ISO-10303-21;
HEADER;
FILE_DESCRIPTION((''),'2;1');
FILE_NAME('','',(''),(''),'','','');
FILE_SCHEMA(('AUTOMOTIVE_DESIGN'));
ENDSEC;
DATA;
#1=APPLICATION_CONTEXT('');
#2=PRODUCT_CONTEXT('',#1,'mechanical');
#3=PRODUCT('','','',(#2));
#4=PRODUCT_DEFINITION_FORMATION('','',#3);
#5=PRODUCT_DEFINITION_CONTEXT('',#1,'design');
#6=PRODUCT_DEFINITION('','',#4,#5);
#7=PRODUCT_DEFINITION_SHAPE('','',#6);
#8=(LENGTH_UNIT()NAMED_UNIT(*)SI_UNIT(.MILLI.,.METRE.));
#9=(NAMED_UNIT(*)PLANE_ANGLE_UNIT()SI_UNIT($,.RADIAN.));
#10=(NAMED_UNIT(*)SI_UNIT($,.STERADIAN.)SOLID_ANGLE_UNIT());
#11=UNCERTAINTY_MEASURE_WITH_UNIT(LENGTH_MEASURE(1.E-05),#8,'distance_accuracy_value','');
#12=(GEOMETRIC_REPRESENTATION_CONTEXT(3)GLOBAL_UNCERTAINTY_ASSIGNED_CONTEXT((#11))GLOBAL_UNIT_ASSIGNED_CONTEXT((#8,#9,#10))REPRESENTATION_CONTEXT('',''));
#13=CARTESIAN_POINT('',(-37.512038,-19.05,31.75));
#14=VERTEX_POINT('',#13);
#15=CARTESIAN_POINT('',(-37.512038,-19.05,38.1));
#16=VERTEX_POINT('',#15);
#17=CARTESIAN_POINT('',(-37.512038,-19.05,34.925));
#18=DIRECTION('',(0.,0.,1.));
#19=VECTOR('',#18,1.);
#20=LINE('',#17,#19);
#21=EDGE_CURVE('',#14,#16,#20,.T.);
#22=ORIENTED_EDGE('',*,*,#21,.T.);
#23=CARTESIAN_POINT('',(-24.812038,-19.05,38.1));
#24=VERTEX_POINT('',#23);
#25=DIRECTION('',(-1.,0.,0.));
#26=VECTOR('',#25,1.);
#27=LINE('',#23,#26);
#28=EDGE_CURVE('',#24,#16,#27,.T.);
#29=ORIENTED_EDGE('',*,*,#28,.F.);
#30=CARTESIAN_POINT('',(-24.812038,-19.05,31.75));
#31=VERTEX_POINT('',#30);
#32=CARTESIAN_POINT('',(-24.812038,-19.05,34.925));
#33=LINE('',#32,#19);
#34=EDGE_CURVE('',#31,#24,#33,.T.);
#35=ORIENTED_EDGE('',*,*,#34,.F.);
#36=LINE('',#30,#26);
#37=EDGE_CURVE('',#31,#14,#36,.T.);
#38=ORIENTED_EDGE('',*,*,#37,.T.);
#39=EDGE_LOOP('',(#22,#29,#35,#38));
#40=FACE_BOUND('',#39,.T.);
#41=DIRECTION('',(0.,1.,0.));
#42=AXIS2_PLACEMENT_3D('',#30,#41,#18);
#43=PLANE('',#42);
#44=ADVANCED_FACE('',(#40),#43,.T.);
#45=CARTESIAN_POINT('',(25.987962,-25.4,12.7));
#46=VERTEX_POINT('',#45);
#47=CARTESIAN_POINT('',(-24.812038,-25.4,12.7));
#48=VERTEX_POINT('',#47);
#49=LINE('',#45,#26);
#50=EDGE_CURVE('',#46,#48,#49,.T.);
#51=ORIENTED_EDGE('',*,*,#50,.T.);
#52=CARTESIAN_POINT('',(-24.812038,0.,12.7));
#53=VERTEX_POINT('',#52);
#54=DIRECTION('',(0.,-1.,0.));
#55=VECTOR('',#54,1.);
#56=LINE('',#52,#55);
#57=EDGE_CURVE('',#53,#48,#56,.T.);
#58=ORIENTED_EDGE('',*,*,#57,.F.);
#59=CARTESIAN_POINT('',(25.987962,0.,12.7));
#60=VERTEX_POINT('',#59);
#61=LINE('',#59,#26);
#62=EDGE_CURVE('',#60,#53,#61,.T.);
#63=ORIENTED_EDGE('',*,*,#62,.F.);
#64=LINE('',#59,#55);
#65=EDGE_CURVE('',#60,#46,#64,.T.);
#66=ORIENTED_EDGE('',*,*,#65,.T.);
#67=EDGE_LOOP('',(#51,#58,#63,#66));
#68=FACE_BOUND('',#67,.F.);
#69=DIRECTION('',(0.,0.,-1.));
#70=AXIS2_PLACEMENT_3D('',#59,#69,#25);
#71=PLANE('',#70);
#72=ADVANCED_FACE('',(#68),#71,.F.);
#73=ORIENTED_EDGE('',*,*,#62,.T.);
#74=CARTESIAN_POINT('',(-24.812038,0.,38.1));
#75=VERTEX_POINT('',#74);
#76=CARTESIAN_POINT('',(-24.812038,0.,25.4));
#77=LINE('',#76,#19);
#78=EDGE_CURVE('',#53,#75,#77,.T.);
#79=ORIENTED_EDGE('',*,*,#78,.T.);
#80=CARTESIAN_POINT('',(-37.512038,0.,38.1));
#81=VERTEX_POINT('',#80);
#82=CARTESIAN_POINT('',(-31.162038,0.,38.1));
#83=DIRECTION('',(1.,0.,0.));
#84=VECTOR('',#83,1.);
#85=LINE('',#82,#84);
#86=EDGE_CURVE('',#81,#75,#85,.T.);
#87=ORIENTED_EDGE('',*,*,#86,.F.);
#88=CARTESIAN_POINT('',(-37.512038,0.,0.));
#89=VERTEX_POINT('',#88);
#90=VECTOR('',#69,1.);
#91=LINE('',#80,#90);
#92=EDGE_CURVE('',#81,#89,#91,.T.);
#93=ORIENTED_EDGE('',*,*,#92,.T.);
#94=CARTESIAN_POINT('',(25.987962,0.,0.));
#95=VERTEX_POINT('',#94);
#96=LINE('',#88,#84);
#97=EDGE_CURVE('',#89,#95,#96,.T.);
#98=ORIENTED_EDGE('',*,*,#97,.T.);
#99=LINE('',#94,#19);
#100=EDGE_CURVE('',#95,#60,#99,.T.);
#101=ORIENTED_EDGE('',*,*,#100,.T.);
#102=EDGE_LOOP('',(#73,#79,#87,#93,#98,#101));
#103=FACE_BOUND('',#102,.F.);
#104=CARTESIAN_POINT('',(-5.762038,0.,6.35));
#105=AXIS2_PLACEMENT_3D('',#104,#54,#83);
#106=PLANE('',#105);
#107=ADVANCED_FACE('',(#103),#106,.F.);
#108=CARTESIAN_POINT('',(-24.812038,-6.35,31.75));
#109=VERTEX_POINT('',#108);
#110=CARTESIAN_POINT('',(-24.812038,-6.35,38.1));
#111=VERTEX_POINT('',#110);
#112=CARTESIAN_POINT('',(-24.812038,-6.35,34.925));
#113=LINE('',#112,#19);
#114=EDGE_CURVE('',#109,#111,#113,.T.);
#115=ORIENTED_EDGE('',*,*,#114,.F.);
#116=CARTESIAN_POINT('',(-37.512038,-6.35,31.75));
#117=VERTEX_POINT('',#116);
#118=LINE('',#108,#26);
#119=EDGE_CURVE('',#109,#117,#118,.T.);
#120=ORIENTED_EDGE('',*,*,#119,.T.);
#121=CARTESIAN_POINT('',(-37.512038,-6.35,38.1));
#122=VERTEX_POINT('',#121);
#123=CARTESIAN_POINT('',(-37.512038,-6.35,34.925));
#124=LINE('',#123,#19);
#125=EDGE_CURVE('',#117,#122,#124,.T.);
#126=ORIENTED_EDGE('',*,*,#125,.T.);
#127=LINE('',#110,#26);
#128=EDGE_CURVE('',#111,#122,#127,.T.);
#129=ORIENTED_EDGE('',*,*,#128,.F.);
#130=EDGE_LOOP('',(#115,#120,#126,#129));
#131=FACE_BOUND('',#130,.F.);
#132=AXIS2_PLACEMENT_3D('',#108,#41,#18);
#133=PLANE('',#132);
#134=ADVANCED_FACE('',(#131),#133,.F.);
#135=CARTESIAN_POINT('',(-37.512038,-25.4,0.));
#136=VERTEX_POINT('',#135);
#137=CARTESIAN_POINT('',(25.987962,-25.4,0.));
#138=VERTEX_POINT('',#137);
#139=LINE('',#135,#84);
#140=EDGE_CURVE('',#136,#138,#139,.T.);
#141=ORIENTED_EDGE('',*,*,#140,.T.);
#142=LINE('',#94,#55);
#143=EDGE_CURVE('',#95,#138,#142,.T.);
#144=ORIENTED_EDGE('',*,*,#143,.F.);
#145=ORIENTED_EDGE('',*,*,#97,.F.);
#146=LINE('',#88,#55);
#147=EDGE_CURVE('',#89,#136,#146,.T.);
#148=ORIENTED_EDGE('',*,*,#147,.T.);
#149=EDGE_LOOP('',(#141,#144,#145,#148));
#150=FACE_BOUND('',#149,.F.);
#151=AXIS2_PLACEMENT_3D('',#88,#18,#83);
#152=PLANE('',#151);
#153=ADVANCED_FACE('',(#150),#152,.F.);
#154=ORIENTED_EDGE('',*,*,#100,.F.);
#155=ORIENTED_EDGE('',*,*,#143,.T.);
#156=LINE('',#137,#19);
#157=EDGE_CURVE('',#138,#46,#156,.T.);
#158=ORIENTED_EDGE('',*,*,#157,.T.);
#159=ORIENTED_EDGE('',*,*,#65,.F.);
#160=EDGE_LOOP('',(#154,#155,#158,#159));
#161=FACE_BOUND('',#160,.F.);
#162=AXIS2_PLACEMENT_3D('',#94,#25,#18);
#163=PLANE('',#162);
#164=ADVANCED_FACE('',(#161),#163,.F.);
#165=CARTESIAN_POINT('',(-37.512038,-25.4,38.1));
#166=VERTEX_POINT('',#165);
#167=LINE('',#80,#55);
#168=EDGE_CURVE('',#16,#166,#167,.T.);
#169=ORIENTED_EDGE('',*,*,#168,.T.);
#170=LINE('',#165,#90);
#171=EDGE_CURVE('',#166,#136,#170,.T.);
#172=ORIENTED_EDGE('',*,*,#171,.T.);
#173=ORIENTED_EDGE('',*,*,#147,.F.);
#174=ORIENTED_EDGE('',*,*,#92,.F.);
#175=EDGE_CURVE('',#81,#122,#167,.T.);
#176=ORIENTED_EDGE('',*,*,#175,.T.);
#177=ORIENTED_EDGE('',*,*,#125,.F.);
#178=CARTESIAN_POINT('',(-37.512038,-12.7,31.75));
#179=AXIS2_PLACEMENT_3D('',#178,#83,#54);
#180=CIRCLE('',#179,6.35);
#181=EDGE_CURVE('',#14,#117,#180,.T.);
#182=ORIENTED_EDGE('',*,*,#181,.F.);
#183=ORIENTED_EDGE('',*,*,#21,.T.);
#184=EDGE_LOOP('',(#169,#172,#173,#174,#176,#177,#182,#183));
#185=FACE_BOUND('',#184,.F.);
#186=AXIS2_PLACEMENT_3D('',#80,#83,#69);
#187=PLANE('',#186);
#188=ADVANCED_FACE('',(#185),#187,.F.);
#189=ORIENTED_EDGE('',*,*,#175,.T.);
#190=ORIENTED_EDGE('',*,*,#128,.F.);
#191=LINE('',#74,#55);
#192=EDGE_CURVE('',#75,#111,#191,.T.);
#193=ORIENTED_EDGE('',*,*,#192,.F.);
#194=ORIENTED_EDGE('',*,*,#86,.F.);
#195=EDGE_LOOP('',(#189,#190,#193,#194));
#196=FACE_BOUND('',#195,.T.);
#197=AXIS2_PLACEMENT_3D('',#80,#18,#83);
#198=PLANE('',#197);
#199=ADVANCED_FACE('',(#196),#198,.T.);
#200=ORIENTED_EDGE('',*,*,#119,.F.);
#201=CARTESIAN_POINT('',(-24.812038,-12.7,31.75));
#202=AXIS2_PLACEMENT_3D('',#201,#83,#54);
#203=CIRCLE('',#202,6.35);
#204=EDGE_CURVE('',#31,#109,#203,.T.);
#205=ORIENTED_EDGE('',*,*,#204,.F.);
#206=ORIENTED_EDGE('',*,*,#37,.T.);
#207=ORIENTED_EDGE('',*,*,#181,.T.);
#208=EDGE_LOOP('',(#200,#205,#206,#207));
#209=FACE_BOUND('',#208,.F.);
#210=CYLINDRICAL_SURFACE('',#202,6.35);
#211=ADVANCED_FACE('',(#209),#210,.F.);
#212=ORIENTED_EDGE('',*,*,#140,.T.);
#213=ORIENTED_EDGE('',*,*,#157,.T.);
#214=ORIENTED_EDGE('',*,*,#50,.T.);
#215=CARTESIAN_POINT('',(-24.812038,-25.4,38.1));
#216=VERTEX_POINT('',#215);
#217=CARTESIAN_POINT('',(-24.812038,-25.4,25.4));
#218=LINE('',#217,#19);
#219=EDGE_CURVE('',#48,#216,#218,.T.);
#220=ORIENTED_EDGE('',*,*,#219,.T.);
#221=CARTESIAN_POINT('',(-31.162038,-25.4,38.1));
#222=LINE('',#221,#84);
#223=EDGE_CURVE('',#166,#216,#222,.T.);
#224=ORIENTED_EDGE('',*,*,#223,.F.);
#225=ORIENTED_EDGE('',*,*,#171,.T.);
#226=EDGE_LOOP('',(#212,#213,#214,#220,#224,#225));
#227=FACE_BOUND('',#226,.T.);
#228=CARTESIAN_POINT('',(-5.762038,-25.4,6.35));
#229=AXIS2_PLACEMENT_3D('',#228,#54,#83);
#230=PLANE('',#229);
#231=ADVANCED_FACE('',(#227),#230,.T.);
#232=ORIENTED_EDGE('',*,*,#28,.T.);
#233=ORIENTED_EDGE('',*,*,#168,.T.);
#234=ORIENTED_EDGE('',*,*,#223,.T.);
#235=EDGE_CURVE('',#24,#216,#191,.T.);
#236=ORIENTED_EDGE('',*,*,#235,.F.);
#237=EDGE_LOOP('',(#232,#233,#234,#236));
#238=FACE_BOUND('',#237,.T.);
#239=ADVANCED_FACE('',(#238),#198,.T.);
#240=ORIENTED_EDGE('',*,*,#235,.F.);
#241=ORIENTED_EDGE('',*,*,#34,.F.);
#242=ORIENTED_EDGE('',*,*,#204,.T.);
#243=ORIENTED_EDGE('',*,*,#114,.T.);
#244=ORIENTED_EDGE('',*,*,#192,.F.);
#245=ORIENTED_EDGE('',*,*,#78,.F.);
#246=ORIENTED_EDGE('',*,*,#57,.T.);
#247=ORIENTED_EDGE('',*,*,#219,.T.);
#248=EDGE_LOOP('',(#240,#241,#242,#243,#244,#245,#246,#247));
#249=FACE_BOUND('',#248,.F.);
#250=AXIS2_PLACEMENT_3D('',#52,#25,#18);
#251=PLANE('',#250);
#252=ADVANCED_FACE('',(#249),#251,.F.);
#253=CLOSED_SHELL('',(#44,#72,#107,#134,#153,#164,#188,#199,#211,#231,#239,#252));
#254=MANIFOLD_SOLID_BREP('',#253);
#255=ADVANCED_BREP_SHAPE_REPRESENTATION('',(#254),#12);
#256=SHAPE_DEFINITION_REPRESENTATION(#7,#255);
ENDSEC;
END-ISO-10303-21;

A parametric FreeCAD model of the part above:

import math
import FreeCAD as App
import Part
import Sketcher

V = App.Vector
Q = App.Units.Quantity

doc = App.newDocument("Part")
body = doc.addObject("PartDesign::Body", "Body")

# Sketch on XZ plane
sketch1 = body.newObject("Sketcher::SketchObject", "Sketch")
sketch1.AttachmentSupport = (doc.getObject("XZ_Plane"), [""])
sketch1.MapMode = "FlatFace"
sketch1.addGeometry([
    Part.LineSegment(V(-38, 0, 0), V(26, 0, 0)),  # 0
    Part.LineSegment(V(26, 0, 0), V(26, 13, 0)),  # 1
    Part.LineSegment(V(26, 13, 0), V(-25, 13, 0)),  # 2
    Part.LineSegment(V(-25, 13, 0), V(-25, 38, 0)),  # 3
    Part.LineSegment(V(-25, 38, 0), V(-38, 38, 0)),  # 4
    Part.LineSegment(V(-38, 38, 0), V(-38, 0, 0)),  # 5
], False)
sketch1.addConstraint([
    Sketcher.Constraint("Coincident", 0, 2, 1, 1),
    Sketcher.Constraint("Coincident", 1, 2, 2, 1),
    Sketcher.Constraint("Coincident", 2, 2, 3, 1),
    Sketcher.Constraint("Coincident", 3, 2, 4, 1),
    Sketcher.Constraint("Coincident", 4, 2, 5, 1),
    Sketcher.Constraint("Coincident", 5, 2, 0, 1),
    Sketcher.Constraint("Horizontal", 0),
    Sketcher.Constraint("Vertical", 1),
    Sketcher.Constraint("Horizontal", 2),
    Sketcher.Constraint("Vertical", 3),
    Sketcher.Constraint("Horizontal", 4),
    Sketcher.Constraint("Vertical", 5),
    Sketcher.Constraint("PointOnObject", 0, 2, -1),
    Sketcher.Constraint("Equal", 4, 1),
    Sketcher.Constraint("DistanceX", 2, 2, 2, 1, Q("2 in")),
    Sketcher.Constraint("DistanceY", 3, 1, 3, 2, Q("1 in")),
    Sketcher.Constraint("DistanceX", 0, 1, 0, 2, Q("2.5 in")),
    Sketcher.Constraint("DistanceX", -1, 1, 0, 2, Q("25.987962 mm")),
])
pad1 = body.newObject("PartDesign::Pad", "Pad")
pad1.Profile = sketch1
pad1.Length = Q("1 in")

# Sketch on XZ plane
sketch2 = body.newObject("Sketcher::SketchObject", "Sketch001")
sketch2.AttachmentSupport = (doc.getObject("XZ_Plane"), [""])
sketch2.MapMode = "FlatFace"
sketch2.addGeometry([
    Part.LineSegment(V(-38, 0, 0), V(26, 0, 0)),  # 0
    Part.LineSegment(V(26, 0, 0), V(26, 13, 0)),  # 1
    Part.LineSegment(V(26, 13, 0), V(-25, 13, 0)),  # 2
    Part.LineSegment(V(-25, 13, 0), V(-25, 38, 0)),  # 3
    Part.LineSegment(V(-25, 38, 0), V(-38, 38, 0)),  # 4
    Part.LineSegment(V(-38, 38, 0), V(-38, 0, 0)),  # 5
], False)
sketch2.addConstraint([
    Sketcher.Constraint("Coincident", 0, 2, 1, 1),
    Sketcher.Constraint("Coincident", 1, 2, 2, 1),
    Sketcher.Constraint("Coincident", 2, 2, 3, 1),
    Sketcher.Constraint("Coincident", 3, 2, 4, 1),
    Sketcher.Constraint("Coincident", 4, 2, 5, 1),
    Sketcher.Constraint("Coincident", 5, 2, 0, 1),
    Sketcher.Constraint("Horizontal", 0),
    Sketcher.Constraint("Vertical", 1),
    Sketcher.Constraint("Horizontal", 2),
    Sketcher.Constraint("Vertical", 3),
    Sketcher.Constraint("Horizontal", 4),
    Sketcher.Constraint("Vertical", 5),
    Sketcher.Constraint("PointOnObject", 0, 2, -1),
    Sketcher.Constraint("Equal", 4, 1),
    Sketcher.Constraint("DistanceX", 2, 2, 2, 1, Q("2 in")),
    Sketcher.Constraint("DistanceY", 3, 1, 3, 2, Q("1 in")),
    Sketcher.Constraint("DistanceX", 0, 1, 0, 2, Q("2.5 in")),
    Sketcher.Constraint("DistanceX", -1, 1, 0, 2, Q("25.987962 mm")),
])
pad2 = body.newObject("PartDesign::Pad", "Pad001")
pad2.Profile = sketch2
pad2.Length = Q("1 in")

# Sketch on YZ plane
sketch3 = body.newObject("Sketcher::SketchObject", "Sketch002")
sketch3.AttachmentSupport = (doc.getObject("YZ_Plane"), [""])
sketch3.MapMode = "FlatFace"
sketch3.AttachmentOffset = App.Placement(V(0, 0, -24.812038), App.Rotation())
sketch3.addGeometry([
    Part.ArcOfCircle(Part.Circle(V(-13, 32, 0), V(0, 0, 1), 6), math.radians(180), math.radians(360)),
    Part.LineSegment(V(-6, 32, 0), V(-6, 38, 0)),
    Part.LineSegment(V(-6, 38, 0), V(-19, 38, 0)),
    Part.LineSegment(V(-19, 38, 0), V(-19, 32, 0)),
], False)
sketch3.addConstraint([
    Sketcher.Constraint("Tangent", 0, 2, 1, 1),
    Sketcher.Constraint("Coincident", 1, 2, 2, 1),
    Sketcher.Constraint("Coincident", 2, 2, 3, 1),
    Sketcher.Constraint("Tangent", 3, 2, 0, 1),
    Sketcher.Constraint("Vertical", 1),
    Sketcher.Constraint("Horizontal", 2),
    Sketcher.Constraint("Vertical", 3),
    Sketcher.Constraint("Radius", 0, Q("0.25 in")),
    Sketcher.Constraint("DistanceY", 1, 1, 1, 2, Q("0.25 in")),
    Sketcher.Constraint("DistanceX", 0, 3, -1, 1, Q("0.5 in")),
    Sketcher.Constraint("DistanceY", -1, 1, 1, 2, Q("1.5 in")),
])
pocket1 = body.newObject("PartDesign::Pocket", "Pocket")
pocket1.Profile = sketch3
pocket1.Length = Q("1 in")

doc.recompute()
